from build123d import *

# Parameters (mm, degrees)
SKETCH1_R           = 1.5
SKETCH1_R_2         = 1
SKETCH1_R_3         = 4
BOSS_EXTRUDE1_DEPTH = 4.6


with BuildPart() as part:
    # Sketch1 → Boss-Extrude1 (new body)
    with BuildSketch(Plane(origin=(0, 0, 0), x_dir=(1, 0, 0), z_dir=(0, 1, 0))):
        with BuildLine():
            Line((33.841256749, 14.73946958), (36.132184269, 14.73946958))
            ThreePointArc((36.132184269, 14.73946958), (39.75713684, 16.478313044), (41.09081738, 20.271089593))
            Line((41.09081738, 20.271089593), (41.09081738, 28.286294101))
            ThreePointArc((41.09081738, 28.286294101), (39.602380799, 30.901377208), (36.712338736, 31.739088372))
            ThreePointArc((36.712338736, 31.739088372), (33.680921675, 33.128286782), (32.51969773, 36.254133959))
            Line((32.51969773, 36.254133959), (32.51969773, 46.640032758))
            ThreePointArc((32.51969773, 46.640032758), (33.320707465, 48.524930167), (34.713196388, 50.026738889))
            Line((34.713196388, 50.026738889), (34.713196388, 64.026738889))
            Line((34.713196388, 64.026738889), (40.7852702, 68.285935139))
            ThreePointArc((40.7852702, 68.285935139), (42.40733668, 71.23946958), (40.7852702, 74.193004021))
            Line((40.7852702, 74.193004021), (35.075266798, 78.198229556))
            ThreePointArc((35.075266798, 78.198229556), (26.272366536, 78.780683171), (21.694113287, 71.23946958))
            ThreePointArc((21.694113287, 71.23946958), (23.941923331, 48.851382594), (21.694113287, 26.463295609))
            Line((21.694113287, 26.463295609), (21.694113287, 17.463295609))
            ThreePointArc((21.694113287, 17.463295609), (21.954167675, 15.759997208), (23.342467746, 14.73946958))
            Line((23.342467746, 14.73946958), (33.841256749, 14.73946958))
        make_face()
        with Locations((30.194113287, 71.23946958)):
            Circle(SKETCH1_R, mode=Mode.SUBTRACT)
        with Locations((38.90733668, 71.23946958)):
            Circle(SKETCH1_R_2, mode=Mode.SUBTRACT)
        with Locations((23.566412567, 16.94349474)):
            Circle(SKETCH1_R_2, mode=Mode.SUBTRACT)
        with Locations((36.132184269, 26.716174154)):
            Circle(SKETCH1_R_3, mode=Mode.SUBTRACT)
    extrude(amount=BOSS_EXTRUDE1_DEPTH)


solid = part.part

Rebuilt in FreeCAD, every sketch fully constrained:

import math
import FreeCAD as App
import Part
import Sketcher
from FreeCAD import Vector
Q = App.Units.Quantity

doc = App.newDocument("Part")
body = doc.addObject("PartDesign::Body", "Body")

# Sketch on XZ plane
sketch1 = body.newObject("Sketcher::SketchObject", "Sketch")
sketch1.AttachmentSupport = (doc.getObject("XZ_Plane"), [""])
sketch1.MapMode = "FlatFace"
sketch1.addGeometry(Part.ArcOfCircle(Part.Circle(Vector(35.845691, -19.984596, 0), Vector(0, 0, 1), 5.252945), math.radians(-3.126439), math.radians(86.873561)), False)
sketch1.addGeometry(Part.LineSegment(Vector(41.090817, -20.27109, 0), Vector(41.090817, -28.286294, 0)), False)
sketch1.addGeometry(Part.ArcOfCircle(Part.Circle(Vector(37.125527, -27.760486, 0), Vector(0, 0, 1), 4), math.radians(-95.929065), math.radians(-7.553505)), False)
sketch1.addGeometry(Part.ArcOfCircle(Part.Circle(Vector(36.873541, -36.092932, 0), Vector(0, 0, 1), 4.356827), math.radians(92.120424), math.radians(182.120424)), False)
sketch1.addGeometry(Part.LineSegment(Vector(32.519698, -36.254134, 0), Vector(32.519698, -46.640033, 0)), False)
sketch1.addGeometry(Part.ArcOfCircle(Part.Circle(Vector(38.316499, -45.289261, 0), Vector(0, 0, 1), 5.952099), math.radians(-166.882991), math.radians(-127.256438)), False)
sketch1.addGeometry(Part.LineSegment(Vector(34.713196, -50.026739, 0), Vector(34.713196, -64.026739, 0)), False)
sketch1.addGeometry(Part.LineSegment(Vector(34.713196, -64.026739, 0), Vector(40.78527, -68.285935, 0)), False)
sketch1.addGeometry(Part.ArcOfCircle(Part.Circle(Vector(38.907337, -71.23947, 0), Vector(0, 0, 1), 3.5), math.radians(-57.550745), math.radians(57.550745)), False)
sketch1.addGeometry(Part.LineSegment(Vector(40.78527, -74.193004, 0), Vector(35.075267, -78.19823, 0)), False)
sketch1.addGeometry(Part.ArcOfCircle(Part.Circle(Vector(30.194113, -71.23947, 0), Vector(0, 0, 1), 8.5), math.radians(180), math.radians(305.047361)), False)
sketch1.addGeometry(Part.ArcOfCircle(Part.Circle(Vector(-88.674152, -48.851383, 0), Vector(0, 0, 1), 112.616075), math.radians(-11.466801), math.radians(11.466801)), False)
sketch1.addGeometry(Part.LineSegment(Vector(21.694113, -26.463296, 0), Vector(21.694113, -17.463296, 0)), False)
sketch1.addGeometry(Part.ArcOfCircle(Part.Circle(Vector(23.880204, -16.92556, 0), Vector(0, 0, 1), 2.251255), math.radians(103.819291), math.radians(193.819291)), False)
sketch1.addGeometry(Part.LineSegment(Vector(23.342468, -14.73947, 0), Vector(36.132184, -14.73947, 0)), False)
sketch1.addGeometry(Part.Circle(Vector(23.566413, -16.943495, 0), Vector(0, 0, 1), 1), False)
sketch1.addGeometry(Part.Circle(Vector(36.132184, -26.716174, 0), Vector(0, 0, 1), 4), False)
sketch1.addGeometry(Part.Circle(Vector(30.194113, -71.23947, 0), Vector(0, 0, 1), 1.5), False)
sketch1.addGeometry(Part.Circle(Vector(38.907337, -71.23947, 0), Vector(0, 0, 1), 1), False)
sketch1.addConstraint(Sketcher.Constraint("Coincident", 0, 1, 1, 1))
sketch1.addConstraint(Sketcher.Constraint("Coincident", 1, 2, 2, 2))
sketch1.addConstraint(Sketcher.Constraint("Coincident", 2, 1, 3, 1))
sketch1.addConstraint(Sketcher.Constraint("Coincident", 3, 2, 4, 1))
sketch1.addConstraint(Sketcher.Constraint("Coincident", 4, 2, 5, 1))
sketch1.addConstraint(Sketcher.Constraint("Coincident", 5, 2, 6, 1))
sketch1.addConstraint(Sketcher.Constraint("Coincident", 6, 2, 7, 1))
sketch1.addConstraint(Sketcher.Constraint("Coincident", 7, 2, 8, 2))
sketch1.addConstraint(Sketcher.Constraint("Coincident", 8, 1, 9, 1))
sketch1.addConstraint(Sketcher.Constraint("Coincident", 9, 2, 10, 2))
sketch1.addConstraint(Sketcher.Constraint("Coincident", 10, 1, 11, 1))
sketch1.addConstraint(Sketcher.Constraint("Coincident", 11, 2, 12, 1))
sketch1.addConstraint(Sketcher.Constraint("Coincident", 12, 2, 13, 2))
sketch1.addConstraint(Sketcher.Constraint("Coincident", 13, 1, 14, 1))
sketch1.addConstraint(Sketcher.Constraint("Coincident", 14, 2, 0, 2))
sketch1.addConstraint(Sketcher.Constraint("Vertical", 1))
sketch1.addConstraint(Sketcher.Constraint("Vertical", 4))
sketch1.addConstraint(Sketcher.Constraint("Vertical", 6))
sketch1.addConstraint(Sketcher.Constraint("Vertical", 12))
sketch1.addConstraint(Sketcher.Constraint("Horizontal", 14))
sketch1.addConstraint(Sketcher.Constraint("Coincident", 17, 3, 10, 3))
sketch1.addConstraint(Sketcher.Constraint("Coincident", 18, 3, 8, 3))
sketch1.addConstraint(Sketcher.Constraint("Diameter", 15, Q("2 mm")))
sketch1.addConstraint(Sketcher.Constraint("Diameter", 16, Q("8 mm")))
sketch1.addConstraint(Sketcher.Constraint("Diameter", 17, Q("3 mm")))
sketch1.addConstraint(Sketcher.Constraint("Diameter", 18, Q("2 mm")))
sketch1.addConstraint(Sketcher.Constraint("Radius", 2, Q("4 mm")))
sketch1.addConstraint(Sketcher.Constraint("Radius", 8, Q("3.5 mm")))
sketch1.addConstraint(Sketcher.Constraint("Radius", 10, Q("8.5 mm")))
sketch1.addConstraint(Sketcher.Constraint("DistanceY", 6, 2, 6, 1, Q("14 mm")))
sketch1.addConstraint(Sketcher.Constraint("DistanceY", 12, 1, 12, 2, Q("9 mm")))
sketch1.addConstraint(Sketcher.Constraint("Radius", 5, Q("5.952099 mm")))
sketch1.addConstraint(Sketcher.Constraint("DistanceY", 4, 2, 4, 1, Q("10.385899 mm")))
sketch1.addConstraint(Sketcher.Constraint("Radius", 0, Q("5.252945 mm")))
sketch1.addConstraint(Sketcher.Constraint("Radius", 3, Q("4.356827 mm")))
sketch1.addConstraint(Sketcher.Constraint("Radius", 11, Q("112.616075 mm")))
sketch1.addConstraint(Sketcher.Constraint("Radius", 13, Q("2.251255 mm")))
sketch1.addConstraint(Sketcher.Constraint("DistanceX", -1, 1, 5, 3, Q("38.316499 mm")))
sketch1.addConstraint(Sketcher.Constraint("DistanceY", 5, 3, 13, 3, Q("28.363701 mm")))
sketch1.addConstraint(Sketcher.Constraint("DistanceY", 0, 3, 15, 3, Q("3.041101 mm")))
sketch1.addConstraint(Sketcher.Constraint("DistanceX", 3, 2, 5, 3, Q("5.796801 mm")))
sketch1.addConstraint(Sketcher.Constraint("DistanceY", 4, 2, 3, 3, Q("10.547101 mm")))
sketch1.addConstraint(Sketcher.Constraint("DistanceX", 4, 2, 5, 2, Q("2.193499 mm")))
sketch1.addConstraint(Sketcher.Constraint("DistanceX", 11, 2, 15, 3, Q("1.872299 mm")))
sketch1.addConstraint(Sketcher.Constraint("DistanceY", 11, 2, 15, 3, Q("9.519801 mm")))
sketch1.addConstraint(Sketcher.Constraint("Distance", 7, Q("7.416929 mm")))
sketch1.addConstraint(Sketcher.Constraint("DistanceX", 14, 1, 14, 2, Q("12.789717 mm")))
sketch1.addConstraint(Sketcher.Constraint("DistanceY", 1, 2, 1, 1, Q("8.015205 mm")))
sketch1.addConstraint(Sketcher.Constraint("DistanceX", -1, 1, 0, 3, Q("35.845691 mm")))
sketch1.addConstraint(Sketcher.Constraint("DistanceY", 3, 3, -1, 1, Q("36.092932 mm")))
sketch1.addConstraint(Sketcher.Constraint("DistanceY", 8, 3, -1, 1, Q("71.23947 mm")))
sketch1.addConstraint(Sketcher.Constraint("DistanceY", 10, 3, -1, 1, Q("71.23947 mm")))
sketch1.addConstraint(Sketcher.Constraint("DistanceX", 11, 3, -1, 1, Q("88.674152 mm")))
sketch1.addConstraint(Sketcher.Constraint("DistanceY", 0, 1, -1, 1, Q("20.27109 mm")))
sketch1.addConstraint(Sketcher.Constraint("DistanceX", -1, 1, 2, 1, Q("36.712339 mm")))
sketch1.addConstraint(Sketcher.Constraint("DistanceX", -1, 1, 7, 2, Q("40.78527 mm")))
sketch1.addConstraint(Sketcher.Constraint("DistanceX", -1, 1, 8, 1, Q("40.78527 mm")))
sketch1.addConstraint(Sketcher.Constraint("DistanceY", 9, 2, -1, 1, Q("78.19823 mm")))
sketch1.addConstraint(Sketcher.Constraint("DistanceY", 10, 1, -1, 1, Q("71.23947 mm")))
sketch1.addConstraint(Sketcher.Constraint("DistanceY", 13, 1, -1, 1, Q("14.73947 mm")))
sketch1.addConstraint(Sketcher.Constraint("DistanceY", 2, 3, 0, 3, Q("7.77589 mm")))
sketch1.addConstraint(Sketcher.Constraint("DistanceY", 16, 3, 0, 3, Q("6.731578 mm")))
sketch1.addConstraint(Sketcher.Constraint("DistanceX", 13, 3, 16, 3, Q("12.251981 mm")))
pad1 = body.newObject("PartDesign::Pad", "Pad")
pad1.Profile = sketch1
pad1.Length = 4.6
pad1.Reversed = True

doc.recompute()
